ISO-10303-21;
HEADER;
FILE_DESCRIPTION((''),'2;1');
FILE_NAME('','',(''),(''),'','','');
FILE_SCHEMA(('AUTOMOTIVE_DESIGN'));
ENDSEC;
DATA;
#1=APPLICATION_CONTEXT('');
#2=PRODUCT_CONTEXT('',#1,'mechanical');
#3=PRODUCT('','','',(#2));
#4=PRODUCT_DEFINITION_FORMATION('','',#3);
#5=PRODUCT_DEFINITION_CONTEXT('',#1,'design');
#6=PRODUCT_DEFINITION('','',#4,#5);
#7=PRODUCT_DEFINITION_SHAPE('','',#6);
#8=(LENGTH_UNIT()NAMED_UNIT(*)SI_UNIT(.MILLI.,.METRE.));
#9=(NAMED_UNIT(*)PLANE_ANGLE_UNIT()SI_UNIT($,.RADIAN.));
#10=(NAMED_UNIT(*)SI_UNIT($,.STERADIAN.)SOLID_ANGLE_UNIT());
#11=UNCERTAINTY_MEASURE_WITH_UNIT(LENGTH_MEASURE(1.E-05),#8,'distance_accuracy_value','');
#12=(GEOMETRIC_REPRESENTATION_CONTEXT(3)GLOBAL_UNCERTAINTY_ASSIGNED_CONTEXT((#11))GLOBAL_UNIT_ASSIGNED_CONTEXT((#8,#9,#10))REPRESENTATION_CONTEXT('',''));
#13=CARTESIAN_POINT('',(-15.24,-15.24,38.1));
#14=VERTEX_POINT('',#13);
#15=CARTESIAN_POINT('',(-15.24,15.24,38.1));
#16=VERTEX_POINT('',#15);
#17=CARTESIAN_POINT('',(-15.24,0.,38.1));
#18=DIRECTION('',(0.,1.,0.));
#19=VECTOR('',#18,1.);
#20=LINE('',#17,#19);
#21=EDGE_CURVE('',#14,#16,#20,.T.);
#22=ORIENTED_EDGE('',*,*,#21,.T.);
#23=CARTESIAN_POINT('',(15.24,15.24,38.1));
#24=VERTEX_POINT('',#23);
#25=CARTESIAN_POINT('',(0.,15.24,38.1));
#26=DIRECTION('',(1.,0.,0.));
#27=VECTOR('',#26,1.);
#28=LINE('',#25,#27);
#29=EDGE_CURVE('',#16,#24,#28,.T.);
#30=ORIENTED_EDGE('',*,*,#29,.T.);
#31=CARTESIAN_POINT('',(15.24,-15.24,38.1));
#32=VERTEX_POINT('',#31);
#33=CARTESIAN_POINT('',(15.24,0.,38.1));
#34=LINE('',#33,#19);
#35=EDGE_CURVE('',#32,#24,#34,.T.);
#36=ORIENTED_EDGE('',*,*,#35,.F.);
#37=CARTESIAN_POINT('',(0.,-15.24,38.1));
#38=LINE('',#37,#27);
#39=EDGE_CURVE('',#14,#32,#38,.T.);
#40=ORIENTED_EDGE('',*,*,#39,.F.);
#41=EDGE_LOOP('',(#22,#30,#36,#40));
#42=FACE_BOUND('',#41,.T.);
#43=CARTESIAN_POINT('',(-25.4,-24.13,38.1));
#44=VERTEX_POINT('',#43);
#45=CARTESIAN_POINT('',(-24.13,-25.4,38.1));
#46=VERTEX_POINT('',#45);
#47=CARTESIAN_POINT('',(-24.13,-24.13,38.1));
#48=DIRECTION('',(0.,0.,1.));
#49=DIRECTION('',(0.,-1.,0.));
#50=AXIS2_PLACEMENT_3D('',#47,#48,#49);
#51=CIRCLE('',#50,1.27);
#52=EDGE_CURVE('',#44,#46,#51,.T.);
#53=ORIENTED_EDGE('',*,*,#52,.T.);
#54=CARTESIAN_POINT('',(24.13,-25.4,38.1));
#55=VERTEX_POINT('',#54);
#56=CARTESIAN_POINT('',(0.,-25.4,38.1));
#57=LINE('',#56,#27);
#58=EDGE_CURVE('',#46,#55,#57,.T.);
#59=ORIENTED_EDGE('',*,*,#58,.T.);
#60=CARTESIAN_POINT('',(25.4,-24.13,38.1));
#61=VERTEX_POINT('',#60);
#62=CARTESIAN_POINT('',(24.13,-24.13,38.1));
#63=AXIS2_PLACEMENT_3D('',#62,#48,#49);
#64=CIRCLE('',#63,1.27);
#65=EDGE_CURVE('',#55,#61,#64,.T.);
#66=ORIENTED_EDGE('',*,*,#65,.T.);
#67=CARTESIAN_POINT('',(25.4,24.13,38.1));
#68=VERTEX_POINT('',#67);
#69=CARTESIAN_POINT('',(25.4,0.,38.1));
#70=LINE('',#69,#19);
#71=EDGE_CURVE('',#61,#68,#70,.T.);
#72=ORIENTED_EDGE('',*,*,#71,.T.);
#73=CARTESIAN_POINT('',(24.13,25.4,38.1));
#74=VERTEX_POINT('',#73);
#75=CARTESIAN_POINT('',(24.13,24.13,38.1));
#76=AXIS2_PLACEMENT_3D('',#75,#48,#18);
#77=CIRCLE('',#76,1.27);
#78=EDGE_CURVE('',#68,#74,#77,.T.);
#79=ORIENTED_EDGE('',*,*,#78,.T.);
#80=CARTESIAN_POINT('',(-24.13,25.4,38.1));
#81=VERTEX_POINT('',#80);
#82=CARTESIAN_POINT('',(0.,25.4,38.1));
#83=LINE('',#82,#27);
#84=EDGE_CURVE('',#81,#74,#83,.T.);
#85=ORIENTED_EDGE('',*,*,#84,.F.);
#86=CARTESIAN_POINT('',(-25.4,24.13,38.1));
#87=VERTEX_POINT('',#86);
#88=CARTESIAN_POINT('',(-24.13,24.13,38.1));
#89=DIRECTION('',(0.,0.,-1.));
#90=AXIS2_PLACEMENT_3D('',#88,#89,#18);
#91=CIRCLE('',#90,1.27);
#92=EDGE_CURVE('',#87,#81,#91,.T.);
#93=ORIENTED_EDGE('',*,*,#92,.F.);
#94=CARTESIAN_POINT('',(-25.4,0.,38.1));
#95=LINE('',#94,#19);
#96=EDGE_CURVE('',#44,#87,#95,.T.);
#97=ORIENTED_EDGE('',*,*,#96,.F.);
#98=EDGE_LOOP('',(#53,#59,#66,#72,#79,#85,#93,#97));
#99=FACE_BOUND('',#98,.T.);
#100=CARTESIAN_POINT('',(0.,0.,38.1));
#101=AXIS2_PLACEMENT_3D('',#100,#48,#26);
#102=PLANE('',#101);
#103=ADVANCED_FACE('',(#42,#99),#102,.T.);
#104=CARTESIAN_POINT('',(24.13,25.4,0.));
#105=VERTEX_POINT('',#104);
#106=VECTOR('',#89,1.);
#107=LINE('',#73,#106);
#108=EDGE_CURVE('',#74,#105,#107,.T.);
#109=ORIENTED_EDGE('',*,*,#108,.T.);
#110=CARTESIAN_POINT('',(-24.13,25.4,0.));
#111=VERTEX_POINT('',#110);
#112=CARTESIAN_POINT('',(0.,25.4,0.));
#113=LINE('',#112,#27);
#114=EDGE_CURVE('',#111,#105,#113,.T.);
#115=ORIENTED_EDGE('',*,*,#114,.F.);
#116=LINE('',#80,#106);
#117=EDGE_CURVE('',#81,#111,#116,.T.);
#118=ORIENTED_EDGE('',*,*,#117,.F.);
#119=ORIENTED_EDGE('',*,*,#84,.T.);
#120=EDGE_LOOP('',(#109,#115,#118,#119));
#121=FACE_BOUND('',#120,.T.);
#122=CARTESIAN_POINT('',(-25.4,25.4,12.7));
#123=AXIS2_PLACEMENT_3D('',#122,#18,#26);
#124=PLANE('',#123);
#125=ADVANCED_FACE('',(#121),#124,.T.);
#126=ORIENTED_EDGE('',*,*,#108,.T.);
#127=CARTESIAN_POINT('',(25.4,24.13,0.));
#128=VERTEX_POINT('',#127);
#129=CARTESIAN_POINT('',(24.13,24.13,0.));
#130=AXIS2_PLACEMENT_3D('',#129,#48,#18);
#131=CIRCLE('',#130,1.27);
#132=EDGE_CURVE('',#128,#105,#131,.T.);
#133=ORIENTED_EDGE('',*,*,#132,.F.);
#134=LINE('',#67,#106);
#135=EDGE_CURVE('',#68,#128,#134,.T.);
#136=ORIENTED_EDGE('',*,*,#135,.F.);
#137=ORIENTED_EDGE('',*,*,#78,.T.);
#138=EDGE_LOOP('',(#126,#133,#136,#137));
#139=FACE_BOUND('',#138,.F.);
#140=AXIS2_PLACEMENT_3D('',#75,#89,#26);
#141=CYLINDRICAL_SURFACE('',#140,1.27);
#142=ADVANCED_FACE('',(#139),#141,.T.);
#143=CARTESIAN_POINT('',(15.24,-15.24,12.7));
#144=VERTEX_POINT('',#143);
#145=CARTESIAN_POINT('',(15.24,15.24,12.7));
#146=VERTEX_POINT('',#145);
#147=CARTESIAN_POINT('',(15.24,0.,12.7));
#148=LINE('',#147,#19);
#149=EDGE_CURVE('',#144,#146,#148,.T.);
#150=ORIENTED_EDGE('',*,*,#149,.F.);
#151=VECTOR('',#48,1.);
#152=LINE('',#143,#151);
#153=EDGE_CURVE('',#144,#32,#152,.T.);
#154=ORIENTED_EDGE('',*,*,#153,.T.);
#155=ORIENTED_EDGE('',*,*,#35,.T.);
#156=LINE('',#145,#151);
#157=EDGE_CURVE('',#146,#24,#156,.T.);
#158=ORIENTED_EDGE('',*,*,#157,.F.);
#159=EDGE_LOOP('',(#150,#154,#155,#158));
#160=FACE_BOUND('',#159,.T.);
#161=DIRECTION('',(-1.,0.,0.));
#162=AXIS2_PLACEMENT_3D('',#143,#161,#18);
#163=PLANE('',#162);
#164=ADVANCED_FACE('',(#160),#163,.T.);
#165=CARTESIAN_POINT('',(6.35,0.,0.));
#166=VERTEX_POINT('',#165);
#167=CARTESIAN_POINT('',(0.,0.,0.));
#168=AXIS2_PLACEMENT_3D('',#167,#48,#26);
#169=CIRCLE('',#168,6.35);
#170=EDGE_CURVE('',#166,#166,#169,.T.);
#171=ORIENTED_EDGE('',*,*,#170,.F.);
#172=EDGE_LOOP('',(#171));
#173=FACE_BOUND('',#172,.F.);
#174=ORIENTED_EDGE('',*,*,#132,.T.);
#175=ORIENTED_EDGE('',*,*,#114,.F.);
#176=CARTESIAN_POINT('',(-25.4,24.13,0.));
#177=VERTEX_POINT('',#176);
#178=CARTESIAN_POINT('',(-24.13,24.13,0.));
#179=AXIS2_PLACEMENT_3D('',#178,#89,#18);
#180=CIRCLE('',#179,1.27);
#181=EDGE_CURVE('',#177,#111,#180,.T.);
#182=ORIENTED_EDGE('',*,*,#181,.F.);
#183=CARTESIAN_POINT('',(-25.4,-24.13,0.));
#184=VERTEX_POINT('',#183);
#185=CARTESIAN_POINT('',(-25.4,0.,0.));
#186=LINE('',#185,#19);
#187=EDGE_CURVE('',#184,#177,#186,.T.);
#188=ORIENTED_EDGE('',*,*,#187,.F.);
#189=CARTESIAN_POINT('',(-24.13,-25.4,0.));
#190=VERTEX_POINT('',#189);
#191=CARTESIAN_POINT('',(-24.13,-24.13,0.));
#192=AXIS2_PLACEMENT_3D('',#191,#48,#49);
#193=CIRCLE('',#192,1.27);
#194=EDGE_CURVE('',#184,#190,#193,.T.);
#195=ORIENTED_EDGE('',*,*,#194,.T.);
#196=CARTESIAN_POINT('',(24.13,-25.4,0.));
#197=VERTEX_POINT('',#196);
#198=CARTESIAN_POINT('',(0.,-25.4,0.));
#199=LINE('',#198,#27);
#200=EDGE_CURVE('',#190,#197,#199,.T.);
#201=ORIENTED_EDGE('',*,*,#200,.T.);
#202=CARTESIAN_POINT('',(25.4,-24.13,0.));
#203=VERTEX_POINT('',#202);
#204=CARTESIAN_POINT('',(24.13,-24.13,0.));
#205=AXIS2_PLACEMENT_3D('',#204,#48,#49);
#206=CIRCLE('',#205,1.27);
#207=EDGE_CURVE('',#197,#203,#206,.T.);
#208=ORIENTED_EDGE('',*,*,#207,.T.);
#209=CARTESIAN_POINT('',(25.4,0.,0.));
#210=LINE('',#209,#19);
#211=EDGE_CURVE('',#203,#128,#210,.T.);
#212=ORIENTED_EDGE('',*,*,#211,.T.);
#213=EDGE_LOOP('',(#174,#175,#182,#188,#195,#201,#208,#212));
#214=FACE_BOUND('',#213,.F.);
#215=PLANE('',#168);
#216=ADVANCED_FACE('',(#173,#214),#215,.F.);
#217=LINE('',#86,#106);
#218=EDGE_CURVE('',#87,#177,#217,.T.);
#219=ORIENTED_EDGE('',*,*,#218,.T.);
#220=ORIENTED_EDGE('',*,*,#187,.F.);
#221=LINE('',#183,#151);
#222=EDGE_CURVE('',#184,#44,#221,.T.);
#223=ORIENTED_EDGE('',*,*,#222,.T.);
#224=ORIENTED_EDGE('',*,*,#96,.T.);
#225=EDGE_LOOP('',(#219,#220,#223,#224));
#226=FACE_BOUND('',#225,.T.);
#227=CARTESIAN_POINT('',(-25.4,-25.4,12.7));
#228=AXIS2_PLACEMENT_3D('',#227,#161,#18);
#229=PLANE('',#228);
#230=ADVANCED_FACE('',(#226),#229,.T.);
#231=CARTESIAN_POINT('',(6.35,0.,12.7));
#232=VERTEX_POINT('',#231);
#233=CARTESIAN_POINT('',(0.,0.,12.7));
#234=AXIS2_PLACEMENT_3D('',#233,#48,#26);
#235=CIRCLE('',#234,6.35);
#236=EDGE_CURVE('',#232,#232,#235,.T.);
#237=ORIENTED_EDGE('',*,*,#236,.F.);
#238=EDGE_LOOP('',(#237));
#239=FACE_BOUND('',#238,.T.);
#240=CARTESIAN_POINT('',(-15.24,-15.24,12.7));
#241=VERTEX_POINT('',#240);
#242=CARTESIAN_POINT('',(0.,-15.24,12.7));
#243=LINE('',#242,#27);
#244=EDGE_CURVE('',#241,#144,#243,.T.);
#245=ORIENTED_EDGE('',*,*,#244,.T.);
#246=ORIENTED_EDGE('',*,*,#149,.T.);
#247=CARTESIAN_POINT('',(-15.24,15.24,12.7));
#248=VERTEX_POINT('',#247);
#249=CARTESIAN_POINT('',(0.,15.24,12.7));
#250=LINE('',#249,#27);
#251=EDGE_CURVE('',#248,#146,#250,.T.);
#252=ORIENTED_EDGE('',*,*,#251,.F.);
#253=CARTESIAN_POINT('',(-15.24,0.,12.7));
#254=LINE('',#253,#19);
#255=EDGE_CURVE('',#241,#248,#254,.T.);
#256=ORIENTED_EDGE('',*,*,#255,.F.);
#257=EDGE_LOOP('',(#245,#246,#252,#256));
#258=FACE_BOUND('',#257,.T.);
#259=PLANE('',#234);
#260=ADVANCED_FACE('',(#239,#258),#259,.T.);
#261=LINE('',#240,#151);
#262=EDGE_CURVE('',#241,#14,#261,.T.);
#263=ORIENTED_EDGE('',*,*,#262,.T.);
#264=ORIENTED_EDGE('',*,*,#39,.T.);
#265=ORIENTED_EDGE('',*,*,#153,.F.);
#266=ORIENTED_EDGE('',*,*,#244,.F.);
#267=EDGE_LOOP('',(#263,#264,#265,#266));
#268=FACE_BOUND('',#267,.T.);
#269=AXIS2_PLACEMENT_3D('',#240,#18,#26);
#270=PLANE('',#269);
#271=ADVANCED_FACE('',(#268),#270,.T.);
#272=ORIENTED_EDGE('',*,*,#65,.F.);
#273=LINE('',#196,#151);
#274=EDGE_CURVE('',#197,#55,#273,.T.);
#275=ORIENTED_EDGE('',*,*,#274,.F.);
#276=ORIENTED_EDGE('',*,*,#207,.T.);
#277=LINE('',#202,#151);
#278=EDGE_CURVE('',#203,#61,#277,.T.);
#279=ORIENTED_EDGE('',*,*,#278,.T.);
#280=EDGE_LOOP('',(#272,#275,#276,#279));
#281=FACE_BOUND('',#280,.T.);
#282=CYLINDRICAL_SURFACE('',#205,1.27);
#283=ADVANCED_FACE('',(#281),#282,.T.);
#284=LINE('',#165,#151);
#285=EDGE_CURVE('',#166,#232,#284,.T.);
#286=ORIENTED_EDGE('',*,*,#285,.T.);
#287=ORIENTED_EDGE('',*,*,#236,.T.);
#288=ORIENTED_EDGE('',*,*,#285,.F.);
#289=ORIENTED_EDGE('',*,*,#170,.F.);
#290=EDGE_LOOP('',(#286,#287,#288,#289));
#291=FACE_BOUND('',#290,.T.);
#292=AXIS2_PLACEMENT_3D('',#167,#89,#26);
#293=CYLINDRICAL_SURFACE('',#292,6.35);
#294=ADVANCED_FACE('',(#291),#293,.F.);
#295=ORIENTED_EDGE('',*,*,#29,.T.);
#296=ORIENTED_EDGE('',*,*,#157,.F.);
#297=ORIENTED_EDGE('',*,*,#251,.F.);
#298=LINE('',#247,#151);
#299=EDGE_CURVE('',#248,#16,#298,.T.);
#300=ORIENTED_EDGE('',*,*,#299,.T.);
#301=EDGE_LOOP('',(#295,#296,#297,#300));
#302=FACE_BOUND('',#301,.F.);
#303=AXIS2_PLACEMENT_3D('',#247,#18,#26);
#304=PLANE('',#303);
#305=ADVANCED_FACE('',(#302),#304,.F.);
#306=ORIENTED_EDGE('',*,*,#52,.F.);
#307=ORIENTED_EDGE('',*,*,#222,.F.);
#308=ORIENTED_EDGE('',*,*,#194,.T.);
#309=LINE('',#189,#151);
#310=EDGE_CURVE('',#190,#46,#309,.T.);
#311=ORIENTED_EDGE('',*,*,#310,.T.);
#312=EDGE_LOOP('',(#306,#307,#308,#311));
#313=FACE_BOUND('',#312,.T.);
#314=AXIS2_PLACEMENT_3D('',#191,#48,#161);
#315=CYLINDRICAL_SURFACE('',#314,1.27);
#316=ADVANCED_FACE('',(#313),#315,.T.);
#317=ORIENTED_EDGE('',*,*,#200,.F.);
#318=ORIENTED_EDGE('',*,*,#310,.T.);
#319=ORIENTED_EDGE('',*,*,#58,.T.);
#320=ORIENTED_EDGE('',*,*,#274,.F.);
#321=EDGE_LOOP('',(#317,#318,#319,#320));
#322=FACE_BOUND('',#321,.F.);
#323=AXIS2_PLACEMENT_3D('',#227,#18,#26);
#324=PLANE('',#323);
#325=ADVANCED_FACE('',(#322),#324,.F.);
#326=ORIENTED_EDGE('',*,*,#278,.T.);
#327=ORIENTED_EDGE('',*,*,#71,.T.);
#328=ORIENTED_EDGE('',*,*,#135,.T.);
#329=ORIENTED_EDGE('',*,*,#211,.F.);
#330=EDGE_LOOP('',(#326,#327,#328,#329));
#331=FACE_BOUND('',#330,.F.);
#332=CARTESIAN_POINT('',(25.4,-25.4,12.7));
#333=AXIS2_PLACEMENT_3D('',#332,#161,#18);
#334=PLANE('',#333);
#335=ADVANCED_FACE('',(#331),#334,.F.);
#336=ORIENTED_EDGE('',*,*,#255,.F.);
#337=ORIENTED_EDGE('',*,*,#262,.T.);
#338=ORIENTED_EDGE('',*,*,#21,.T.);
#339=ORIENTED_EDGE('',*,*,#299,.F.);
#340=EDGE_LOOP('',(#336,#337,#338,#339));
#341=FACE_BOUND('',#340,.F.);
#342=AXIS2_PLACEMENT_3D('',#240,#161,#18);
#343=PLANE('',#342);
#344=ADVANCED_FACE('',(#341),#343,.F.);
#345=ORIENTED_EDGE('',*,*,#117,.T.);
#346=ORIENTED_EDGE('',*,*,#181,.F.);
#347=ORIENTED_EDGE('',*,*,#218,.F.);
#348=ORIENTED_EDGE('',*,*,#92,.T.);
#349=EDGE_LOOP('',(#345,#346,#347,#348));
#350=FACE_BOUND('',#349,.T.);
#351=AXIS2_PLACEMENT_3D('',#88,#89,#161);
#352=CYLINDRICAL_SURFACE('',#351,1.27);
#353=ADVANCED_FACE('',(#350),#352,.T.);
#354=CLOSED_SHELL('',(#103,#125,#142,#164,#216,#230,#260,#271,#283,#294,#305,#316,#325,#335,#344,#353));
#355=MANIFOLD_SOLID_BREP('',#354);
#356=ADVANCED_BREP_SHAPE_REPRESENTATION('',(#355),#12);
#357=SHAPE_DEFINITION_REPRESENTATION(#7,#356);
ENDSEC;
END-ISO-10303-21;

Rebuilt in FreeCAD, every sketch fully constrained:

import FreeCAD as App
import Part
import Sketcher
from FreeCAD import Vector
Q = App.Units.Quantity


def edges_at(feature, points):
    """Names of the edges that pass closest to the given points."""
    edges = feature.Shape.Edges
    near = lambda p: min(range(len(edges)), key=lambda i: edges[i].distToShape(Part.Vertex(*p))[0])
    return sorted({f"Edge{near(p) + 1}" for p in points})

doc = App.newDocument("Part")
body = doc.addObject("PartDesign::Body", "Body")

sketch1 = doc.addObject("Sketcher::SketchObject", "Sketch")
body.addObject(sketch1)
sketch1.AttachmentSupport = (doc.XY_Plane, [""])
sketch1.MapMode = "FlatFace"
sketch1.addGeometry(Part.LineSegment(Vector(-25, 25, 0), Vector(-25, -25, 0)), False)
sketch1.addGeometry(Part.LineSegment(Vector(-25, -25, 0), Vector(25, -25, 0)), False)
sketch1.addGeometry(Part.LineSegment(Vector(25, -25, 0), Vector(25, 25, 0)), False)
sketch1.addGeometry(Part.LineSegment(Vector(25, 25, 0), Vector(-25, 25, 0)), False)
sketch1.addGeometry(Part.Circle(Vector(0, 0, 0), Vector(0, 0, 1), 6), False)
sketch1.addConstraint(Sketcher.Constraint("Coincident", 0, 2, 1, 1))
sketch1.addConstraint(Sketcher.Constraint("Coincident", 1, 2, 2, 1))
sketch1.addConstraint(Sketcher.Constraint("Coincident", 2, 2, 3, 1))
sketch1.addConstraint(Sketcher.Constraint("Coincident", 3, 2, 0, 1))
sketch1.addConstraint(Sketcher.Constraint("Vertical", 0))
sketch1.addConstraint(Sketcher.Constraint("Horizontal", 1))
sketch1.addConstraint(Sketcher.Constraint("Vertical", 2))
sketch1.addConstraint(Sketcher.Constraint("Horizontal", 3))
sketch1.addConstraint(Sketcher.Constraint("Coincident", 4, 3, -1, 1))
sketch1.addConstraint(Sketcher.Constraint("Symmetric", 0, 2, 2, 2, -1, 1))
sketch1.addConstraint(Sketcher.Constraint("Equal", 3, 0))
sketch1.addConstraint(Sketcher.Constraint("Diameter", 4, Q("0.5 in")))
sketch1.addConstraint(Sketcher.Constraint("DistanceX", 1, 1, 1, 2, Q("2 in")))
pad1 = doc.addObject("PartDesign::Pad", "Pad")
body.addObject(pad1)
pad1.Profile = sketch1
pad1.Length = Q("0.5 in")

sketch2 = doc.addObject("Sketcher::SketchObject", "Sketch001")
body.addObject(sketch2)
sketch2.AttachmentSupport = (doc.XY_Plane, [""])
sketch2.MapMode = "FlatFace"
sketch2.AttachmentOffset = App.Placement(Vector(0, 0, 0.5 * 25.4), App.Rotation())
sketch2.addGeometry(Part.LineSegment(Vector(-25, 25, 0), Vector(-25, -25, 0)), False)
sketch2.addGeometry(Part.LineSegment(Vector(-25, -25, 0), Vector(25, -25, 0)), False)
sketch2.addGeometry(Part.LineSegment(Vector(25, -25, 0), Vector(25, 25, 0)), False)
sketch2.addGeometry(Part.LineSegment(Vector(25, 25, 0), Vector(-25, 25, 0)), False)
sketch2.addGeometry(Part.LineSegment(Vector(15, -15, 0), Vector(-15, -15, 0)), False)
sketch2.addGeometry(Part.LineSegment(Vector(-15, -15, 0), Vector(-15, 15, 0)), False)
sketch2.addGeometry(Part.LineSegment(Vector(-15, 15, 0), Vector(15, 15, 0)), False)
sketch2.addGeometry(Part.LineSegment(Vector(15, 15, 0), Vector(15, -15, 0)), False)
sketch2.addConstraint(Sketcher.Constraint("Coincident", 0, 2, 1, 1))
sketch2.addConstraint(Sketcher.Constraint("Coincident", 1, 2, 2, 1))
sketch2.addConstraint(Sketcher.Constraint("Coincident", 2, 2, 3, 1))
sketch2.addConstraint(Sketcher.Constraint("Coincident", 3, 2, 0, 1))
sketch2.addConstraint(Sketcher.Constraint("Coincident", 4, 2, 5, 1))
sketch2.addConstraint(Sketcher.Constraint("Coincident", 5, 2, 6, 1))
sketch2.addConstraint(Sketcher.Constraint("Coincident", 6, 2, 7, 1))
sketch2.addConstraint(Sketcher.Constraint("Coincident", 7, 2, 4, 1))
sketch2.addConstraint(Sketcher.Constraint("Vertical", 0))
sketch2.addConstraint(Sketcher.Constraint("Horizontal", 1))
sketch2.addConstraint(Sketcher.Constraint("Vertical", 2))
sketch2.addConstraint(Sketcher.Constraint("Horizontal", 3))
sketch2.addConstraint(Sketcher.Constraint("Horizontal", 4))
sketch2.addConstraint(Sketcher.Constraint("Vertical", 5))
sketch2.addConstraint(Sketcher.Constraint("Horizontal", 6))
sketch2.addConstraint(Sketcher.Constraint("Vertical", 7))
sketch2.addConstraint(Sketcher.Constraint("Symmetric", 0, 2, 2, 2, -1, 1))
sketch2.addConstraint(Sketcher.Constraint("Symmetric", 4, 2, 6, 2, -1, 1))
sketch2.addConstraint(Sketcher.Constraint("Equal", 3, 0))
sketch2.addConstraint(Sketcher.Constraint("Equal", 6, 5))
sketch2.addConstraint(Sketcher.Constraint("DistanceX", 1, 1, 1, 2, Q("2 in")))
sketch2.addConstraint(Sketcher.Constraint("DistanceX", 4, 2, 4, 1, Q("1.2 in")))
pad2 = doc.addObject("PartDesign::Pad", "Pad001")
body.addObject(pad2)
pad2.Profile = sketch2
pad2.Length = Q("1 in")
doc.recompute()

fillet = doc.addObject("PartDesign::Fillet", "Fillet")
body.addObject(fillet)
fillet.Base = (pad2, edges_at(pad2, [
    (25.4, -25.4, 19.05),
    (25.4, 25.4, 19.05),
    (-25.4, -25.4, 19.05),
    (-25.4, 25.4, 19.05),
]))
fillet.Radius = Q("0.05 in")

doc.recompute()
